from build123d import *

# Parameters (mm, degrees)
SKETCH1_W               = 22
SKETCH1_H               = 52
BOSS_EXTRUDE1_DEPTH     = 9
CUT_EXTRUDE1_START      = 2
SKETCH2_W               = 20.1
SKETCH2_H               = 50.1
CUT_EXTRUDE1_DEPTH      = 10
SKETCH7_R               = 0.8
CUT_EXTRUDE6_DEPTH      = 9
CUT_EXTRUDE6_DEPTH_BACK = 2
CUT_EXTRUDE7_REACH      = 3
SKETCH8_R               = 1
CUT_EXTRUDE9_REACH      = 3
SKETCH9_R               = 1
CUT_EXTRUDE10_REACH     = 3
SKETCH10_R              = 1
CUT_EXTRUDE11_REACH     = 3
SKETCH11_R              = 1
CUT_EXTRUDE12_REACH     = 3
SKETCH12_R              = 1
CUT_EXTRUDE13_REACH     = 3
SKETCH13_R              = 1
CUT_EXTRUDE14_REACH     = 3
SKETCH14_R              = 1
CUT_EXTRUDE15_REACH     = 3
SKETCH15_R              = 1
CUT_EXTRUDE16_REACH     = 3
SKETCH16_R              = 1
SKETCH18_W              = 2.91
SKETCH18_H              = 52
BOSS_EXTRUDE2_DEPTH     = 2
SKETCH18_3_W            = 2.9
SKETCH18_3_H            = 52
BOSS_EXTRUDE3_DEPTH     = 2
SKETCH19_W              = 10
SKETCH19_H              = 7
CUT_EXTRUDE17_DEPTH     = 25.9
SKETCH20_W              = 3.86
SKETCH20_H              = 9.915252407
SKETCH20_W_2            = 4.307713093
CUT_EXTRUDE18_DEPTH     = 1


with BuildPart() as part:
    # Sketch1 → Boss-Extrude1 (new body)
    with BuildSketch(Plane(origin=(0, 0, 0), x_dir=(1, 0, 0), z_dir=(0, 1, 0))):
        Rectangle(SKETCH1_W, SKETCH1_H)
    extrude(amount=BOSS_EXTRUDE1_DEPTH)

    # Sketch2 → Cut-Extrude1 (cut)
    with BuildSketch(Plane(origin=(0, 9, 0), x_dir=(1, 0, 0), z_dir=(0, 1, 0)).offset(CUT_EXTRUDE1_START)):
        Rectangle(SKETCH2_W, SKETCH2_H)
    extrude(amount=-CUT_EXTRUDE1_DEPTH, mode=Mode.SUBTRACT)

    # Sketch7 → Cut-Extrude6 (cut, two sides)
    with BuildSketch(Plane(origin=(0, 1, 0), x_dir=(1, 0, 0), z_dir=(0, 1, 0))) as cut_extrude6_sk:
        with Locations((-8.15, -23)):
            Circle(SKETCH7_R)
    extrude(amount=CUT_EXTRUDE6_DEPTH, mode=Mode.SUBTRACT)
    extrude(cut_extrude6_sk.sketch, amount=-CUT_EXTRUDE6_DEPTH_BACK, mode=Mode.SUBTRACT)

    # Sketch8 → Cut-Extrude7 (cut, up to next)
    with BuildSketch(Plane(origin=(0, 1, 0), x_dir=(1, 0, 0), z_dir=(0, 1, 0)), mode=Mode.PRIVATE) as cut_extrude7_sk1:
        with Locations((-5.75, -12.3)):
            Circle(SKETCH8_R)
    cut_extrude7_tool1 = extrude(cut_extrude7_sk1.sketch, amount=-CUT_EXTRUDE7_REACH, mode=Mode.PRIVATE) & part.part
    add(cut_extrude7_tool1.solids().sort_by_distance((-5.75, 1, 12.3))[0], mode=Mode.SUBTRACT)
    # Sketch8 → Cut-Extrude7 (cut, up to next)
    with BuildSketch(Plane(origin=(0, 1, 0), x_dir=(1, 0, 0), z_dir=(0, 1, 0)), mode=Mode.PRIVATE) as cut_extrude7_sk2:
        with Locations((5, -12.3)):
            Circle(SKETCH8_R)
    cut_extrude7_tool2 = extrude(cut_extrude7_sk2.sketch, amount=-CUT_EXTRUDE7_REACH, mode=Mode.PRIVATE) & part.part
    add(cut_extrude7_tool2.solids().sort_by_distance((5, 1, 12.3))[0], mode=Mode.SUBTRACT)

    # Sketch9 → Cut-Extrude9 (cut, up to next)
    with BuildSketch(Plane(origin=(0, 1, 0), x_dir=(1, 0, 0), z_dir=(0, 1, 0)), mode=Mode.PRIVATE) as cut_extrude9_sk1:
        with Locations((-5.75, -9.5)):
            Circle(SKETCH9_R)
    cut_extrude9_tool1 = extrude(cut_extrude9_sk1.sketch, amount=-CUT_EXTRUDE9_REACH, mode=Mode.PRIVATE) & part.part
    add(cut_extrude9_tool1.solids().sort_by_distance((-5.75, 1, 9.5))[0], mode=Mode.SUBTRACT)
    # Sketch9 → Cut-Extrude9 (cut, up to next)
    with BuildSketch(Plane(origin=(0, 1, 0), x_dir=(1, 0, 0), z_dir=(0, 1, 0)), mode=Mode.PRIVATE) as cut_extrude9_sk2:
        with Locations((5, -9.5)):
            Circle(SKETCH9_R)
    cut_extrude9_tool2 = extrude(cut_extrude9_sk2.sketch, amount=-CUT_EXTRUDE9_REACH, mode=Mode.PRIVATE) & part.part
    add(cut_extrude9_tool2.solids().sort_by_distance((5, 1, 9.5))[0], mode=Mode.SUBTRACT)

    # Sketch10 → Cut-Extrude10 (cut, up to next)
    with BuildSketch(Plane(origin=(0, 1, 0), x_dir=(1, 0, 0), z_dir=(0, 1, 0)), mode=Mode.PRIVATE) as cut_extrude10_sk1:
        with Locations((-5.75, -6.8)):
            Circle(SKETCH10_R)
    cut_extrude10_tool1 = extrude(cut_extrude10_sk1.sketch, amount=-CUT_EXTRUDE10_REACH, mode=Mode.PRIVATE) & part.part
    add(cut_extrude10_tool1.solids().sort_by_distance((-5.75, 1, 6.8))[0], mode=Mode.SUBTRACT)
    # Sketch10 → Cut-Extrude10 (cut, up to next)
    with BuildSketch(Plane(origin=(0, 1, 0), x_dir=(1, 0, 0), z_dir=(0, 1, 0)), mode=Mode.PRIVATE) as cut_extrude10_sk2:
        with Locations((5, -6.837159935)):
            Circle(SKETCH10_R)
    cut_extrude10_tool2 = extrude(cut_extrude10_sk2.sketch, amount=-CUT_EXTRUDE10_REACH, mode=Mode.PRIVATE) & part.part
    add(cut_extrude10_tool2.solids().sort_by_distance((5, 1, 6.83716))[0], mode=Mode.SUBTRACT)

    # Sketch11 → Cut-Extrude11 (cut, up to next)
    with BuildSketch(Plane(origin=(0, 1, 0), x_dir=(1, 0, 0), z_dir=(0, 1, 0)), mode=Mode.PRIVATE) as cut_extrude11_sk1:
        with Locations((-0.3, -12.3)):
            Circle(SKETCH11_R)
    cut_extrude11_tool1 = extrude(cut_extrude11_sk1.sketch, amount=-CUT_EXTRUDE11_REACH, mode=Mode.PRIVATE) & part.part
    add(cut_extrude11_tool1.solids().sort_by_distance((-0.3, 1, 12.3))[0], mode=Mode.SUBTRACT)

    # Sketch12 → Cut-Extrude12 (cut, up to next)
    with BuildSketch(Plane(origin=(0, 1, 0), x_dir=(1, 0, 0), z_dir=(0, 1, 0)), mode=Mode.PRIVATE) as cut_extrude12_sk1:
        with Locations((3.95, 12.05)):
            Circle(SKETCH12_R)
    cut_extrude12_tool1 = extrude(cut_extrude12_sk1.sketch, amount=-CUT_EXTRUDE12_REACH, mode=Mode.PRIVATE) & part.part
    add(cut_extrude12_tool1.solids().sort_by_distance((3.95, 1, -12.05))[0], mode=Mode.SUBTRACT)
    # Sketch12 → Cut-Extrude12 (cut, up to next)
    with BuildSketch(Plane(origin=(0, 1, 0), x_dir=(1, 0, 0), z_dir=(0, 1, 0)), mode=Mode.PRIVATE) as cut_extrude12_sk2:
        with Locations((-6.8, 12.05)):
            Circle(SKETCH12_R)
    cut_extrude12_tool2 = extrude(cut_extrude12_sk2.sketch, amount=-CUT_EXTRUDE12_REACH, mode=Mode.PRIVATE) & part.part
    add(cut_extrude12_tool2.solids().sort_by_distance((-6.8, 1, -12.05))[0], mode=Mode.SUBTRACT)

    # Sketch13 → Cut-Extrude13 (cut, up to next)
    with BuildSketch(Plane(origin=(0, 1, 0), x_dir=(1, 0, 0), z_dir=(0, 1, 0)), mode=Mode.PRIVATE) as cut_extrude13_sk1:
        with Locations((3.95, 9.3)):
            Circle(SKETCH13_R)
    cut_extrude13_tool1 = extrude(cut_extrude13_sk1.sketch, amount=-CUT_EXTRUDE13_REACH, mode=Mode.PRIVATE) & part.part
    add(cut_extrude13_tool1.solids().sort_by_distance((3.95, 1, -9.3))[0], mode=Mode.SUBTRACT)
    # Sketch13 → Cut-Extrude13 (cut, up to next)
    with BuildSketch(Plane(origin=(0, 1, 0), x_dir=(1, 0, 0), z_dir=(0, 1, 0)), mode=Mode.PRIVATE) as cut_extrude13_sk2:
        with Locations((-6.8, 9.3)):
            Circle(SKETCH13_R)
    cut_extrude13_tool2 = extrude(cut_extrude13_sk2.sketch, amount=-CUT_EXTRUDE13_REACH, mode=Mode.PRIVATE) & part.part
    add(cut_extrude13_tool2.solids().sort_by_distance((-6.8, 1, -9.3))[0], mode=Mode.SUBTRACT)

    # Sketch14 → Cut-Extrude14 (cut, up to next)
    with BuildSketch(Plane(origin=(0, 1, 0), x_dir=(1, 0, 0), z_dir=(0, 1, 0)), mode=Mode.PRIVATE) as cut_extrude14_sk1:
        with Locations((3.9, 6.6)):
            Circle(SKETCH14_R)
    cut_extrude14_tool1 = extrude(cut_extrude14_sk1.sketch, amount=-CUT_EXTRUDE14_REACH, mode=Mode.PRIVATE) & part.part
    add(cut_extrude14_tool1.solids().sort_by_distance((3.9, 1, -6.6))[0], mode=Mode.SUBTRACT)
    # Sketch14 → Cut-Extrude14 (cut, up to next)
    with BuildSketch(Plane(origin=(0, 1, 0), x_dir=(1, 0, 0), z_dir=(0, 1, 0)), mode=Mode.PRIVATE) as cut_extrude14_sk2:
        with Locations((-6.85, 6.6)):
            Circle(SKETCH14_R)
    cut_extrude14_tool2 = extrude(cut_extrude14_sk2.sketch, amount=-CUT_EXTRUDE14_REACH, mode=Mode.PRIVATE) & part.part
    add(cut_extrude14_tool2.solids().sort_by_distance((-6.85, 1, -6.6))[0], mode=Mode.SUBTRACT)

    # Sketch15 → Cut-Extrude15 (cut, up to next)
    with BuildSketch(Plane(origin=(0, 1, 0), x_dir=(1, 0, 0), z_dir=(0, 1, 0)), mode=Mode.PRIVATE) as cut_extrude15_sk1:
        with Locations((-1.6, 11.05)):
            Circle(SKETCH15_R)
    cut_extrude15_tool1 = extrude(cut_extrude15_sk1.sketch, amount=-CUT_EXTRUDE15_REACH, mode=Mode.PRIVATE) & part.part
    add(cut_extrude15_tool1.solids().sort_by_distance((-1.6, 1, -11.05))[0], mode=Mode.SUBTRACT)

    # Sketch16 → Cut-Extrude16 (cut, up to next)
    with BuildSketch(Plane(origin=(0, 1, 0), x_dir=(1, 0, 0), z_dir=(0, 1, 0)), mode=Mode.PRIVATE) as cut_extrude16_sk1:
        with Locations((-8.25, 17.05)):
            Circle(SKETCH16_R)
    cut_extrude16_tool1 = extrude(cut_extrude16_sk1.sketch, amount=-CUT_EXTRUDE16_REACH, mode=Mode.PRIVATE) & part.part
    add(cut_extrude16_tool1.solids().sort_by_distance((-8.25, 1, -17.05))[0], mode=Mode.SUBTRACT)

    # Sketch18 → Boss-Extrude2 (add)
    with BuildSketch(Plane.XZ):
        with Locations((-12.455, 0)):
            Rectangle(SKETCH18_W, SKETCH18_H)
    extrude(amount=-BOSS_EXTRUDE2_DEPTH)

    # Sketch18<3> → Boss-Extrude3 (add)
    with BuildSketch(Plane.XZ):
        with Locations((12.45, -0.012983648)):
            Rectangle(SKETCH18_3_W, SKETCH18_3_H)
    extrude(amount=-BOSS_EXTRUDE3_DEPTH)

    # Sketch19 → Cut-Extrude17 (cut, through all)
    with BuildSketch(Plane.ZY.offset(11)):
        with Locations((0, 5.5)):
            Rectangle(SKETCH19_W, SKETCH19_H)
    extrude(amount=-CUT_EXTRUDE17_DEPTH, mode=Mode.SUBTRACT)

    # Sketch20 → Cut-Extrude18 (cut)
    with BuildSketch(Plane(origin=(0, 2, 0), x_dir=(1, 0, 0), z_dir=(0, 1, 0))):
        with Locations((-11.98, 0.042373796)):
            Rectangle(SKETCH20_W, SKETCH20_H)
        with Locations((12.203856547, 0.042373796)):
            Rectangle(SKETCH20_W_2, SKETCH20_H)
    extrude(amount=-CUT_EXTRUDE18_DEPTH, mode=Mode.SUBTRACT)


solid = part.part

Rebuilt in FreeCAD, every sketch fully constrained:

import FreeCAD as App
import Part
import Sketcher

V = App.Vector

doc = App.newDocument("Part")
params = doc.addObject("Spreadsheet::Sheet", "Params")
for row, (alias, value) in enumerate([
    ("sketch1_width", "22 mm"),
    ("sketch1_height", "52 mm"),
    ("pad1_length", "9 mm"),
    ("sketch2_width", "20.1 mm"),
    ("sketch2_height", "50.1 mm"),
    ("pocket1_length", "10 mm"),
    ("sketch3_diameter", "1.6 mm"),
    ("sketch4_diameter", "2 mm"),
    ("sketch5_diameter", "2 mm"),
    ("sketch6_diameter", "2 mm"),
    ("sketch7_diameter", "2 mm"),
    ("sketch8_diameter", "2 mm"),
    ("sketch9_diameter", "2 mm"),
    ("sketch10_diameter", "2 mm"),
    ("sketch11_diameter", "2 mm"),
    ("sketch12_diameter", "2 mm"),
    ("sketch13_diameter", "2 mm"),
    ("sketch14_diameter", "2 mm"),
    ("sketch15_diameter", "2 mm"),
    ("sketch16_diameter", "2 mm"),
    ("sketch17_diameter", "2 mm"),
    ("sketch18_diameter", "2 mm"),
    ("sketch19_height", "52 mm"),
    ("sketch19_width", "2.91 mm"),
    ("pad2_length", "2 mm"),
    ("sketch20_height", "52 mm"),
    ("sketch20_width", "2.9 mm"),
    ("pad3_length", "2 mm"),
    ("sketch21_width", "7 mm"),
    ("sketch21_height", "10 mm"),
    ("sketch22_width", "3.86 mm"),
    ("pocket19_length", "1 mm"),
], start=1):
    params.set(f"A{row}", alias)
    params.set(f"B{row}", "=" + value)
    params.setAlias(f"B{row}", alias)

body = doc.addObject("PartDesign::Body", "Body")

# Sketch on XZ plane
sketch1 = body.newObject("Sketcher::SketchObject", "Sketch")
sketch1.AttachmentSupport = (doc.getObject("XZ_Plane"), [""])
sketch1.MapMode = "FlatFace"
sketch1.addGeometry([
    Part.LineSegment(V(-11, -26, 0), V(-11, 26, 0)),
    Part.LineSegment(V(-11, 26, 0), V(11, 26, 0)),
    Part.LineSegment(V(11, 26, 0), V(11, -26, 0)),
    Part.LineSegment(V(11, -26, 0), V(-11, -26, 0)),
], False)
sketch1.addConstraint([
    Sketcher.Constraint("Coincident", 0, 2, 1, 1),
    Sketcher.Constraint("Coincident", 1, 2, 2, 1),
    Sketcher.Constraint("Coincident", 2, 2, 3, 1),
    Sketcher.Constraint("Coincident", 3, 2, 0, 1),
    Sketcher.Constraint("Vertical", 0),
    Sketcher.Constraint("Horizontal", 1),
    Sketcher.Constraint("Vertical", 2),
    Sketcher.Constraint("Horizontal", 3),
    Sketcher.Constraint("Symmetric", 0, 2, 2, 2, -1, 1),
    Sketcher.Constraint("DistanceX", 1, 1, 1, 2, 22.0),
    Sketcher.Constraint("DistanceY", 0, 1, 0, 2, 52.0),
])
sketch1.setExpression("Constraints[9]", "Params.sketch1_width")
sketch1.setExpression("Constraints[10]", "Params.sketch1_height")
pad1 = body.newObject("PartDesign::Pad", "Pad")
pad1.Profile = sketch1
pad1.setExpression("Length", "Params.pad1_length")
pad1.Reversed = True

# Sketch on XZ plane
sketch2 = body.newObject("Sketcher::SketchObject", "Sketch001")
sketch2.AttachmentSupport = (doc.getObject("XZ_Plane"), [""])
sketch2.MapMode = "FlatFace"
sketch2.AttachmentOffset = App.Placement(V(0, 0, -11), App.Rotation())
sketch2.addGeometry([
    Part.LineSegment(V(-10, -25, 0), V(-10, 25, 0)),
    Part.LineSegment(V(-10, 25, 0), V(10, 25, 0)),
    Part.LineSegment(V(10, 25, 0), V(10, -25, 0)),
    Part.LineSegment(V(10, -25, 0), V(-10, -25, 0)),
], False)
sketch2.addConstraint([
    Sketcher.Constraint("Coincident", 0, 2, 1, 1),
    Sketcher.Constraint("Coincident", 1, 2, 2, 1),
    Sketcher.Constraint("Coincident", 2, 2, 3, 1),
    Sketcher.Constraint("Coincident", 3, 2, 0, 1),
    Sketcher.Constraint("Vertical", 0),
    Sketcher.Constraint("Horizontal", 1),
    Sketcher.Constraint("Vertical", 2),
    Sketcher.Constraint("Horizontal", 3),
    Sketcher.Constraint("Symmetric", 0, 2, 2, 2, -1, 1),
    Sketcher.Constraint("DistanceX", 1, 1, 1, 2, 20.1),
    Sketcher.Constraint("DistanceY", 0, 1, 0, 2, 50.1),
])
sketch2.setExpression("Constraints[9]", "Params.sketch2_width")
sketch2.setExpression("Constraints[10]", "Params.sketch2_height")
pocket1 = body.newObject("PartDesign::Pocket", "Pocket")
pocket1.Profile = sketch2
pocket1.setExpression("Length", "Params.pocket1_length")
pocket1.Reversed = True

# Sketch on XZ plane
sketch3 = body.newObject("Sketcher::SketchObject", "Sketch002")
sketch3.AttachmentSupport = (doc.getObject("XZ_Plane"), [""])
sketch3.MapMode = "FlatFace"
sketch3.AttachmentOffset = App.Placement(V(0, 0, -1), App.Rotation())
sketch3.addGeometry(Part.Circle(V(-8.2, 23, 0), V(0, 0, 1), 0.8), False)
sketch3.addConstraint([
    Sketcher.Constraint("Diameter", 0, 1.6),
    Sketcher.Constraint("DistanceY", -1, 1, 0, 3, 23.0),
    Sketcher.Constraint("DistanceX", 0, 3, -1, 1, 8.15),
])
sketch3.setExpression("Constraints[0]", "Params.sketch3_diameter")
pocket2 = body.newObject("PartDesign::Pocket", "Pocket001")
pocket2.Profile = sketch3
pocket2.Type = "ThroughAll"
pocket2.Midplane = True

# Sketch on XZ plane
sketch4 = body.newObject("Sketcher::SketchObject", "Sketch003")
sketch4.AttachmentSupport = (doc.getObject("XZ_Plane"), [""])
sketch4.MapMode = "FlatFace"
sketch4.AttachmentOffset = App.Placement(V(0, 0, -1), App.Rotation())
sketch4.addGeometry(Part.Circle(V(-5.8, 12.3, 0), V(0, 0, 1), 1), False)
sketch4.addConstraint([
    Sketcher.Constraint("Diameter", 0, 2.0),
    Sketcher.Constraint("DistanceY", -1, 1, 0, 3, 12.3),
    Sketcher.Constraint("DistanceX", 0, 3, -1, 1, 5.75),
])
sketch4.setExpression("Constraints[0]", "Params.sketch4_diameter")
pocket3 = body.newObject("PartDesign::Pocket", "Pocket002")
pocket3.Profile = sketch4
pocket3.Type = "UpToFirst"
pocket3.Reversed = True

# Sketch on XZ plane
sketch5 = body.newObject("Sketcher::SketchObject", "Sketch004")
sketch5.AttachmentSupport = (doc.getObject("XZ_Plane"), [""])
sketch5.MapMode = "FlatFace"
sketch5.AttachmentOffset = App.Placement(V(0, 0, -1), App.Rotation())
sketch5.addGeometry(Part.Circle(V(5, 12.3, 0), V(0, 0, 1), 1), False)
sketch5.addConstraint([
    Sketcher.Constraint("Diameter", 0, 2.0),
    Sketcher.Constraint("DistanceX", -1, 1, 0, 3, 5.0),
    Sketcher.Constraint("DistanceY", -1, 1, 0, 3, 12.3),
])
sketch5.setExpression("Constraints[0]", "Params.sketch5_diameter")
pocket4 = body.newObject("PartDesign::Pocket", "Pocket003")
pocket4.Profile = sketch5
pocket4.Type = "UpToFirst"
pocket4.Reversed = True

# Sketch on XZ plane
sketch6 = body.newObject("Sketcher::SketchObject", "Sketch005")
sketch6.AttachmentSupport = (doc.getObject("XZ_Plane"), [""])
sketch6.MapMode = "FlatFace"
sketch6.AttachmentOffset = App.Placement(V(0, 0, -1), App.Rotation())
sketch6.addGeometry(Part.Circle(V(-5.8, 9.5, 0), V(0, 0, 1), 1), False)
sketch6.addConstraint([
    Sketcher.Constraint("Diameter", 0, 2.0),
    Sketcher.Constraint("DistanceY", -1, 1, 0, 3, 9.5),
    Sketcher.Constraint("DistanceX", 0, 3, -1, 1, 5.75),
])
sketch6.setExpression("Constraints[0]", "Params.sketch6_diameter")
pocket5 = body.newObject("PartDesign::Pocket", "Pocket004")
pocket5.Profile = sketch6
pocket5.Type = "UpToFirst"
pocket5.Reversed = True

# Sketch on XZ plane
sketch7 = body.newObject("Sketcher::SketchObject", "Sketch006")
sketch7.AttachmentSupport = (doc.getObject("XZ_Plane"), [""])
sketch7.MapMode = "FlatFace"
sketch7.AttachmentOffset = App.Placement(V(0, 0, -1), App.Rotation())
sketch7.addGeometry(Part.Circle(V(5, 9.5, 0), V(0, 0, 1), 1), False)
sketch7.addConstraint([
    Sketcher.Constraint("Diameter", 0, 2.0),
    Sketcher.Constraint("DistanceX", -1, 1, 0, 3, 5.0),
    Sketcher.Constraint("DistanceY", -1, 1, 0, 3, 9.5),
])
sketch7.setExpression("Constraints[0]", "Params.sketch7_diameter")
pocket6 = body.newObject("PartDesign::Pocket", "Pocket005")
pocket6.Profile = sketch7
pocket6.Type = "UpToFirst"
pocket6.Reversed = True

# Sketch on XZ plane
sketch8 = body.newObject("Sketcher::SketchObject", "Sketch007")
sketch8.AttachmentSupport = (doc.getObject("XZ_Plane"), [""])
sketch8.MapMode = "FlatFace"
sketch8.AttachmentOffset = App.Placement(V(0, 0, -1), App.Rotation())
sketch8.addGeometry(Part.Circle(V(-5.8, 6.8, 0), V(0, 0, 1), 1), False)
sketch8.addConstraint([
    Sketcher.Constraint("Diameter", 0, 2.0),
    Sketcher.Constraint("DistanceY", -1, 1, 0, 3, 6.8),
    Sketcher.Constraint("DistanceX", 0, 3, -1, 1, 5.75),
])
sketch8.setExpression("Constraints[0]", "Params.sketch8_diameter")
pocket7 = body.newObject("PartDesign::Pocket", "Pocket006")
pocket7.Profile = sketch8
pocket7.Type = "UpToFirst"
pocket7.Reversed = True

# Sketch on XZ plane
sketch9 = body.newObject("Sketcher::SketchObject", "Sketch008")
sketch9.AttachmentSupport = (doc.getObject("XZ_Plane"), [""])
sketch9.MapMode = "FlatFace"
sketch9.AttachmentOffset = App.Placement(V(0, 0, -1), App.Rotation())
sketch9.addGeometry(Part.Circle(V(5, 6.8, 0), V(0, 0, 1), 1), False)
sketch9.addConstraint([
    Sketcher.Constraint("Diameter", 0, 2.0),
    Sketcher.Constraint("DistanceX", -1, 1, 0, 3, 5.0),
    Sketcher.Constraint("DistanceY", -1, 1, 0, 3, 6.83716),
])
sketch9.setExpression("Constraints[0]", "Params.sketch9_diameter")
pocket8 = body.newObject("PartDesign::Pocket", "Pocket007")
pocket8.Profile = sketch9
pocket8.Type = "UpToFirst"
pocket8.Reversed = True

# Sketch on XZ plane
sketch10 = body.newObject("Sketcher::SketchObject", "Sketch009")
sketch10.AttachmentSupport = (doc.getObject("XZ_Plane"), [""])
sketch10.MapMode = "FlatFace"
sketch10.AttachmentOffset = App.Placement(V(0, 0, -1), App.Rotation())
sketch10.addGeometry(Part.Circle(V(-0.3, 12.3, 0), V(0, 0, 1), 1), False)
sketch10.addConstraint([
    Sketcher.Constraint("Diameter", 0, 2.0),
    Sketcher.Constraint("DistanceX", 0, 3, -1, 1, 0.3),
    Sketcher.Constraint("DistanceY", -1, 1, 0, 3, 12.3),
])
sketch10.setExpression("Constraints[0]", "Params.sketch10_diameter")
pocket9 = body.newObject("PartDesign::Pocket", "Pocket008")
pocket9.Profile = sketch10
pocket9.Type = "UpToFirst"
pocket9.Reversed = True

# Sketch on XZ plane
sketch11 = body.newObject("Sketcher::SketchObject", "Sketch010")
sketch11.AttachmentSupport = (doc.getObject("XZ_Plane"), [""])
sketch11.MapMode = "FlatFace"
sketch11.AttachmentOffset = App.Placement(V(0, 0, -1), App.Rotation())
sketch11.addGeometry(Part.Circle(V(4, -12.1, 0), V(0, 0, 1), 1), False)
sketch11.addConstraint([
    Sketcher.Constraint("Diameter", 0, 2.0),
    Sketcher.Constraint("DistanceX", -1, 1, 0, 3, 3.95),
    Sketcher.Constraint("DistanceY", 0, 3, -1, 1, 12.05),
])
sketch11.setExpression("Constraints[0]", "Params.sketch11_diameter")
pocket10 = body.newObject("PartDesign::Pocket", "Pocket009")
pocket10.Profile = sketch11
pocket10.Type = "UpToFirst"
pocket10.Reversed = True

# Sketch on XZ plane
sketch12 = body.newObject("Sketcher::SketchObject", "Sketch011")
sketch12.AttachmentSupport = (doc.getObject("XZ_Plane"), [""])
sketch12.MapMode = "FlatFace"
sketch12.AttachmentOffset = App.Placement(V(0, 0, -1), App.Rotation())
sketch12.addGeometry(Part.Circle(V(-6.8, -12.1, 0), V(0, 0, 1), 1), False)
sketch12.addConstraint([
    Sketcher.Constraint("Diameter", 0, 2.0),
    Sketcher.Constraint("DistanceX", 0, 3, -1, 1, 6.8),
    Sketcher.Constraint("DistanceY", 0, 3, -1, 1, 12.05),
])
sketch12.setExpression("Constraints[0]", "Params.sketch12_diameter")
pocket11 = body.newObject("PartDesign::Pocket", "Pocket010")
pocket11.Profile = sketch12
pocket11.Type = "UpToFirst"
pocket11.Reversed = True

# Sketch on XZ plane
sketch13 = body.newObject("Sketcher::SketchObject", "Sketch012")
sketch13.AttachmentSupport = (doc.getObject("XZ_Plane"), [""])
sketch13.MapMode = "FlatFace"
sketch13.AttachmentOffset = App.Placement(V(0, 0, -1), App.Rotation())
sketch13.addGeometry(Part.Circle(V(4, -9.3, 0), V(0, 0, 1), 1), False)
sketch13.addConstraint([
    Sketcher.Constraint("Diameter", 0, 2.0),
    Sketcher.Constraint("DistanceY", 0, 3, -1, 1, 9.3),
    Sketcher.Constraint("DistanceX", -1, 1, 0, 3, 3.95),
])
sketch13.setExpression("Constraints[0]", "Params.sketch13_diameter")
pocket12 = body.newObject("PartDesign::Pocket", "Pocket011")
pocket12.Profile = sketch13
pocket12.Type = "UpToFirst"
pocket12.Reversed = True

# Sketch on XZ plane
sketch14 = body.newObject("Sketcher::SketchObject", "Sketch013")
sketch14.AttachmentSupport = (doc.getObject("XZ_Plane"), [""])
sketch14.MapMode = "FlatFace"
sketch14.AttachmentOffset = App.Placement(V(0, 0, -1), App.Rotation())
sketch14.addGeometry(Part.Circle(V(-6.8, -9.3, 0), V(0, 0, 1), 1), False)
sketch14.addConstraint([
    Sketcher.Constraint("Diameter", 0, 2.0),
    Sketcher.Constraint("DistanceX", 0, 3, -1, 1, 6.8),
    Sketcher.Constraint("DistanceY", 0, 3, -1, 1, 9.3),
])
sketch14.setExpression("Constraints[0]", "Params.sketch14_diameter")
pocket13 = body.newObject("PartDesign::Pocket", "Pocket012")
pocket13.Profile = sketch14
pocket13.Type = "UpToFirst"
pocket13.Reversed = True

# Sketch on XZ plane
sketch15 = body.newObject("Sketcher::SketchObject", "Sketch014")
sketch15.AttachmentSupport = (doc.getObject("XZ_Plane"), [""])
sketch15.MapMode = "FlatFace"
sketch15.AttachmentOffset = App.Placement(V(0, 0, -1), App.Rotation())
sketch15.addGeometry(Part.Circle(V(3.9, -6.6, 0), V(0, 0, 1), 1), False)
sketch15.addConstraint([
    Sketcher.Constraint("Diameter", 0, 2.0),
    Sketcher.Constraint("DistanceX", -1, 1, 0, 3, 3.9),
    Sketcher.Constraint("DistanceY", 0, 3, -1, 1, 6.6),
])
sketch15.setExpression("Constraints[0]", "Params.sketch15_diameter")
pocket14 = body.newObject("PartDesign::Pocket", "Pocket013")
pocket14.Profile = sketch15
pocket14.Type = "UpToFirst"
pocket14.Reversed = True

# Sketch on XZ plane
sketch16 = body.newObject("Sketcher::SketchObject", "Sketch015")
sketch16.AttachmentSupport = (doc.getObject("XZ_Plane"), [""])
sketch16.MapMode = "FlatFace"
sketch16.AttachmentOffset = App.Placement(V(0, 0, -1), App.Rotation())
sketch16.addGeometry(Part.Circle(V(-6.8, -6.6, 0), V(0, 0, 1), 1), False)
sketch16.addConstraint([
    Sketcher.Constraint("Diameter", 0, 2.0),
    Sketcher.Constraint("DistanceY", 0, 3, -1, 1, 6.6),
    Sketcher.Constraint("DistanceX", 0, 3, -1, 1, 6.85),
])
sketch16.setExpression("Constraints[0]", "Params.sketch16_diameter")
pocket15 = body.newObject("PartDesign::Pocket", "Pocket014")
pocket15.Profile = sketch16
pocket15.Type = "UpToFirst"
pocket15.Reversed = True

# Sketch on XZ plane
sketch17 = body.newObject("Sketcher::SketchObject", "Sketch016")
sketch17.AttachmentSupport = (doc.getObject("XZ_Plane"), [""])
sketch17.MapMode = "FlatFace"
sketch17.AttachmentOffset = App.Placement(V(0, 0, -1), App.Rotation())
sketch17.addGeometry(Part.Circle(V(-1.6, -11.1, 0), V(0, 0, 1), 1), False)
sketch17.addConstraint([
    Sketcher.Constraint("Diameter", 0, 2.0),
    Sketcher.Constraint("DistanceX", 0, 3, -1, 1, 1.6),
    Sketcher.Constraint("DistanceY", 0, 3, -1, 1, 11.05),
])
sketch17.setExpression("Constraints[0]", "Params.sketch17_diameter")
pocket16 = body.newObject("PartDesign::Pocket", "Pocket015")
pocket16.Profile = sketch17
pocket16.Type = "UpToFirst"
pocket16.Reversed = True

# Sketch on XZ plane
sketch18 = body.newObject("Sketcher::SketchObject", "Sketch017")
sketch18.AttachmentSupport = (doc.getObject("XZ_Plane"), [""])
sketch18.MapMode = "FlatFace"
sketch18.AttachmentOffset = App.Placement(V(0, 0, -1), App.Rotation())
sketch18.addGeometry(Part.Circle(V(-8.2, -17.1, 0), V(0, 0, 1), 1), False)
sketch18.addConstraint([
    Sketcher.Constraint("Diameter", 0, 2.0),
    Sketcher.Constraint("DistanceX", 0, 3, -1, 1, 8.25),
    Sketcher.Constraint("DistanceY", 0, 3, -1, 1, 17.05),
])
sketch18.setExpression("Constraints[0]", "Params.sketch18_diameter")
pocket17 = body.newObject("PartDesign::Pocket", "Pocket016")
pocket17.Profile = sketch18
pocket17.Type = "UpToFirst"
pocket17.Reversed = True

# Sketch on XZ plane
sketch19 = body.newObject("Sketcher::SketchObject", "Sketch018")
sketch19.AttachmentSupport = (doc.getObject("XZ_Plane"), [""])
sketch19.MapMode = "FlatFace"
sketch19.addGeometry([
    Part.LineSegment(V(-13.9, 26, 0), V(-13.9, -26, 0)),
    Part.LineSegment(V(-13.9, -26, 0), V(-11, -26, 0)),
    Part.LineSegment(V(-11, -26, 0), V(-11, 26, 0)),
    Part.LineSegment(V(-11, 26, 0), V(-13.9, 26, 0)),
], False)
sketch19.addConstraint([
    Sketcher.Constraint("Coincident", 0, 2, 1, 1),
    Sketcher.Constraint("Coincident", 1, 2, 2, 1),
    Sketcher.Constraint("Coincident", 2, 2, 3, 1),
    Sketcher.Constraint("Coincident", 3, 2, 0, 1),
    Sketcher.Constraint("Vertical", 0),
    Sketcher.Constraint("Horizontal", 1),
    Sketcher.Constraint("Vertical", 2),
    Sketcher.Constraint("Horizontal", 3),
    Sketcher.Constraint("DistanceY", 0, 2, 0, 1, 52.0),
    Sketcher.Constraint("DistanceY", 0, 2, -1, 1, 26.0),
    Sketcher.Constraint("DistanceX", 1, 2, -1, 1, 11.0),
    Sketcher.Constraint("DistanceX", 1, 1, 1, 2, 2.91),
])
sketch19.setExpression("Constraints[8]", "Params.sketch19_height")
sketch19.setExpression("Constraints[11]", "Params.sketch19_width")
pad2 = body.newObject("PartDesign::Pad", "Pad001")
pad2.Profile = sketch19
pad2.setExpression("Length", "Params.pad2_length")
pad2.Reversed = True

# Sketch on XZ plane
sketch20 = body.newObject("Sketcher::SketchObject", "Sketch019")
sketch20.AttachmentSupport = (doc.getObject("XZ_Plane"), [""])
sketch20.MapMode = "FlatFace"
sketch20.addGeometry([
    Part.LineSegment(V(11, 26, 0), V(11, -26, 0)),
    Part.LineSegment(V(11, -26, 0), V(13.9, -26, 0)),
    Part.LineSegment(V(13.9, -26, 0), V(13.9, 26, 0)),
    Part.LineSegment(V(13.9, 26, 0), V(11, 26, 0)),
], False)
sketch20.addConstraint([
    Sketcher.Constraint("Coincident", 0, 2, 1, 1),
    Sketcher.Constraint("Coincident", 1, 2, 2, 1),
    Sketcher.Constraint("Coincident", 2, 2, 3, 1),
    Sketcher.Constraint("Coincident", 3, 2, 0, 1),
    Sketcher.Constraint("Vertical", 0),
    Sketcher.Constraint("Horizontal", 1),
    Sketcher.Constraint("Vertical", 2),
    Sketcher.Constraint("Horizontal", 3),
    Sketcher.Constraint("DistanceY", 0, 2, 0, 1, 52.0),
    Sketcher.Constraint("DistanceX", 1, 1, 1, 2, 2.9),
    Sketcher.Constraint("DistanceX", -1, 1, 0, 2, 11.0),
    Sketcher.Constraint("DistanceY", 0, 2, -1, 1, 26.012984),
])
sketch20.setExpression("Constraints[8]", "Params.sketch20_height")
sketch20.setExpression("Constraints[9]", "Params.sketch20_width")
pad3 = body.newObject("PartDesign::Pad", "Pad002")
pad3.Profile = sketch20
pad3.setExpression("Length", "Params.pad3_length")
pad3.Reversed = True

# Sketch on YZ plane
sketch21 = body.newObject("Sketcher::SketchObject", "Sketch020")
sketch21.AttachmentSupport = (doc.getObject("YZ_Plane"), [""])
sketch21.MapMode = "FlatFace"
sketch21.AttachmentOffset = App.Placement(V(0, 0, -11), App.Rotation())
sketch21.addGeometry([
    Part.LineSegment(V(9, -5, 0), V(2, -5, 0)),
    Part.LineSegment(V(2, -5, 0), V(2, 5, 0)),
    Part.LineSegment(V(2, 5, 0), V(9, 5, 0)),
    Part.LineSegment(V(9, 5, 0), V(9, -5, 0)),
], False)
sketch21.addConstraint([
    Sketcher.Constraint("Coincident", 0, 2, 1, 1),
    Sketcher.Constraint("Coincident", 1, 2, 2, 1),
    Sketcher.Constraint("Coincident", 2, 2, 3, 1),
    Sketcher.Constraint("Coincident", 3, 2, 0, 1),
    Sketcher.Constraint("Horizontal", 0),
    Sketcher.Constraint("Vertical", 1),
    Sketcher.Constraint("Horizontal", 2),
    Sketcher.Constraint("Vertical", 3),
    Sketcher.Constraint("DistanceX", 0, 2, 0, 1, 7.0),
    Sketcher.Constraint("DistanceY", 1, 1, 1, 2, 10.0),
    Sketcher.Constraint("DistanceX", -1, 1, 0, 2, 2.0),
    Sketcher.Constraint("DistanceY", 0, 2, -1, 1, 5.0),
])
sketch21.setExpression("Constraints[8]", "Params.sketch21_width")
sketch21.setExpression("Constraints[9]", "Params.sketch21_height")
pocket18 = body.newObject("PartDesign::Pocket", "Pocket017")
pocket18.Profile = sketch21
pocket18.Type = "ThroughAll"
pocket18.Reversed = True

# Sketch on XZ plane
sketch22 = body.newObject("Sketcher::SketchObject", "Sketch021")
sketch22.AttachmentSupport = (doc.getObject("XZ_Plane"), [""])
sketch22.MapMode = "FlatFace"
sketch22.AttachmentOffset = App.Placement(V(0, 0, -2), App.Rotation())
sketch22.addGeometry([
    Part.LineSegment(V(-13.9, -5, 0), V(-13.9, 4.9, 0)),  # 0
    Part.LineSegment(V(-13.9, 4.9, 0), V(-10.1, 4.9, 0)),  # 1
    Part.LineSegment(V(-10.1, 4.9, 0), V(-10.1, -5, 0)),  # 2
    Part.LineSegment(V(-10.1, -5, 0), V(-13.9, -5, 0)),  # 3
    Part.LineSegment(V(10.1, -5, 0), V(10.1, 4.9, 0)),  # 4
    Part.LineSegment(V(10.1, 4.9, 0), V(14.4, 4.9, 0)),  # 5
    Part.LineSegment(V(14.4, 4.9, 0), V(14.4, -5, 0)),  # 6
    Part.LineSegment(V(14.4, -5, 0), V(10.1, -5, 0)),  # 7
], False)
sketch22.addConstraint([
    Sketcher.Constraint("Coincident", 0, 2, 1, 1),
    Sketcher.Constraint("Coincident", 1, 2, 2, 1),
    Sketcher.Constraint("Coincident", 2, 2, 3, 1),
    Sketcher.Constraint("Coincident", 3, 2, 0, 1),
    Sketcher.Constraint("Coincident", 4, 2, 5, 1),
    Sketcher.Constraint("Coincident", 5, 2, 6, 1),
    Sketcher.Constraint("Coincident", 6, 2, 7, 1),
    Sketcher.Constraint("Coincident", 7, 2, 4, 1),
    Sketcher.Constraint("Vertical", 0),
    Sketcher.Constraint("Horizontal", 1),
    Sketcher.Constraint("Vertical", 2),
    Sketcher.Constraint("Horizontal", 3),
    Sketcher.Constraint("Vertical", 4),
    Sketcher.Constraint("Horizontal", 5),
    Sketcher.Constraint("Vertical", 6),
    Sketcher.Constraint("Horizontal", 7),
    Sketcher.Constraint("Symmetric", 1, 2, 4, 2, -2),
    Sketcher.Constraint("Horizontal", 3, 2, 6, 2),
    Sketcher.Constraint("DistanceY", 2, 2, -1, 1, 5.0),
    Sketcher.Constraint("DistanceX", 1, 1, 1, 2, 3.86),
    Sketcher.Constraint("DistanceX", 1, 2, 4, 2, 20.1),
    Sketcher.Constraint("DistanceX", 5, 1, 5, 2, 4.307713),
    Sketcher.Constraint("DistanceY", 0, 1, 0, 2, 9.915252),
])
sketch22.setExpression("Constraints[19]", "Params.sketch22_width")
pocket19 = body.newObject("PartDesign::Pocket", "Pocket018")
pocket19.Profile = sketch22
pocket19.setExpression("Length", "Params.pocket19_length")
pocket19.Reversed = True

doc.recompute()
